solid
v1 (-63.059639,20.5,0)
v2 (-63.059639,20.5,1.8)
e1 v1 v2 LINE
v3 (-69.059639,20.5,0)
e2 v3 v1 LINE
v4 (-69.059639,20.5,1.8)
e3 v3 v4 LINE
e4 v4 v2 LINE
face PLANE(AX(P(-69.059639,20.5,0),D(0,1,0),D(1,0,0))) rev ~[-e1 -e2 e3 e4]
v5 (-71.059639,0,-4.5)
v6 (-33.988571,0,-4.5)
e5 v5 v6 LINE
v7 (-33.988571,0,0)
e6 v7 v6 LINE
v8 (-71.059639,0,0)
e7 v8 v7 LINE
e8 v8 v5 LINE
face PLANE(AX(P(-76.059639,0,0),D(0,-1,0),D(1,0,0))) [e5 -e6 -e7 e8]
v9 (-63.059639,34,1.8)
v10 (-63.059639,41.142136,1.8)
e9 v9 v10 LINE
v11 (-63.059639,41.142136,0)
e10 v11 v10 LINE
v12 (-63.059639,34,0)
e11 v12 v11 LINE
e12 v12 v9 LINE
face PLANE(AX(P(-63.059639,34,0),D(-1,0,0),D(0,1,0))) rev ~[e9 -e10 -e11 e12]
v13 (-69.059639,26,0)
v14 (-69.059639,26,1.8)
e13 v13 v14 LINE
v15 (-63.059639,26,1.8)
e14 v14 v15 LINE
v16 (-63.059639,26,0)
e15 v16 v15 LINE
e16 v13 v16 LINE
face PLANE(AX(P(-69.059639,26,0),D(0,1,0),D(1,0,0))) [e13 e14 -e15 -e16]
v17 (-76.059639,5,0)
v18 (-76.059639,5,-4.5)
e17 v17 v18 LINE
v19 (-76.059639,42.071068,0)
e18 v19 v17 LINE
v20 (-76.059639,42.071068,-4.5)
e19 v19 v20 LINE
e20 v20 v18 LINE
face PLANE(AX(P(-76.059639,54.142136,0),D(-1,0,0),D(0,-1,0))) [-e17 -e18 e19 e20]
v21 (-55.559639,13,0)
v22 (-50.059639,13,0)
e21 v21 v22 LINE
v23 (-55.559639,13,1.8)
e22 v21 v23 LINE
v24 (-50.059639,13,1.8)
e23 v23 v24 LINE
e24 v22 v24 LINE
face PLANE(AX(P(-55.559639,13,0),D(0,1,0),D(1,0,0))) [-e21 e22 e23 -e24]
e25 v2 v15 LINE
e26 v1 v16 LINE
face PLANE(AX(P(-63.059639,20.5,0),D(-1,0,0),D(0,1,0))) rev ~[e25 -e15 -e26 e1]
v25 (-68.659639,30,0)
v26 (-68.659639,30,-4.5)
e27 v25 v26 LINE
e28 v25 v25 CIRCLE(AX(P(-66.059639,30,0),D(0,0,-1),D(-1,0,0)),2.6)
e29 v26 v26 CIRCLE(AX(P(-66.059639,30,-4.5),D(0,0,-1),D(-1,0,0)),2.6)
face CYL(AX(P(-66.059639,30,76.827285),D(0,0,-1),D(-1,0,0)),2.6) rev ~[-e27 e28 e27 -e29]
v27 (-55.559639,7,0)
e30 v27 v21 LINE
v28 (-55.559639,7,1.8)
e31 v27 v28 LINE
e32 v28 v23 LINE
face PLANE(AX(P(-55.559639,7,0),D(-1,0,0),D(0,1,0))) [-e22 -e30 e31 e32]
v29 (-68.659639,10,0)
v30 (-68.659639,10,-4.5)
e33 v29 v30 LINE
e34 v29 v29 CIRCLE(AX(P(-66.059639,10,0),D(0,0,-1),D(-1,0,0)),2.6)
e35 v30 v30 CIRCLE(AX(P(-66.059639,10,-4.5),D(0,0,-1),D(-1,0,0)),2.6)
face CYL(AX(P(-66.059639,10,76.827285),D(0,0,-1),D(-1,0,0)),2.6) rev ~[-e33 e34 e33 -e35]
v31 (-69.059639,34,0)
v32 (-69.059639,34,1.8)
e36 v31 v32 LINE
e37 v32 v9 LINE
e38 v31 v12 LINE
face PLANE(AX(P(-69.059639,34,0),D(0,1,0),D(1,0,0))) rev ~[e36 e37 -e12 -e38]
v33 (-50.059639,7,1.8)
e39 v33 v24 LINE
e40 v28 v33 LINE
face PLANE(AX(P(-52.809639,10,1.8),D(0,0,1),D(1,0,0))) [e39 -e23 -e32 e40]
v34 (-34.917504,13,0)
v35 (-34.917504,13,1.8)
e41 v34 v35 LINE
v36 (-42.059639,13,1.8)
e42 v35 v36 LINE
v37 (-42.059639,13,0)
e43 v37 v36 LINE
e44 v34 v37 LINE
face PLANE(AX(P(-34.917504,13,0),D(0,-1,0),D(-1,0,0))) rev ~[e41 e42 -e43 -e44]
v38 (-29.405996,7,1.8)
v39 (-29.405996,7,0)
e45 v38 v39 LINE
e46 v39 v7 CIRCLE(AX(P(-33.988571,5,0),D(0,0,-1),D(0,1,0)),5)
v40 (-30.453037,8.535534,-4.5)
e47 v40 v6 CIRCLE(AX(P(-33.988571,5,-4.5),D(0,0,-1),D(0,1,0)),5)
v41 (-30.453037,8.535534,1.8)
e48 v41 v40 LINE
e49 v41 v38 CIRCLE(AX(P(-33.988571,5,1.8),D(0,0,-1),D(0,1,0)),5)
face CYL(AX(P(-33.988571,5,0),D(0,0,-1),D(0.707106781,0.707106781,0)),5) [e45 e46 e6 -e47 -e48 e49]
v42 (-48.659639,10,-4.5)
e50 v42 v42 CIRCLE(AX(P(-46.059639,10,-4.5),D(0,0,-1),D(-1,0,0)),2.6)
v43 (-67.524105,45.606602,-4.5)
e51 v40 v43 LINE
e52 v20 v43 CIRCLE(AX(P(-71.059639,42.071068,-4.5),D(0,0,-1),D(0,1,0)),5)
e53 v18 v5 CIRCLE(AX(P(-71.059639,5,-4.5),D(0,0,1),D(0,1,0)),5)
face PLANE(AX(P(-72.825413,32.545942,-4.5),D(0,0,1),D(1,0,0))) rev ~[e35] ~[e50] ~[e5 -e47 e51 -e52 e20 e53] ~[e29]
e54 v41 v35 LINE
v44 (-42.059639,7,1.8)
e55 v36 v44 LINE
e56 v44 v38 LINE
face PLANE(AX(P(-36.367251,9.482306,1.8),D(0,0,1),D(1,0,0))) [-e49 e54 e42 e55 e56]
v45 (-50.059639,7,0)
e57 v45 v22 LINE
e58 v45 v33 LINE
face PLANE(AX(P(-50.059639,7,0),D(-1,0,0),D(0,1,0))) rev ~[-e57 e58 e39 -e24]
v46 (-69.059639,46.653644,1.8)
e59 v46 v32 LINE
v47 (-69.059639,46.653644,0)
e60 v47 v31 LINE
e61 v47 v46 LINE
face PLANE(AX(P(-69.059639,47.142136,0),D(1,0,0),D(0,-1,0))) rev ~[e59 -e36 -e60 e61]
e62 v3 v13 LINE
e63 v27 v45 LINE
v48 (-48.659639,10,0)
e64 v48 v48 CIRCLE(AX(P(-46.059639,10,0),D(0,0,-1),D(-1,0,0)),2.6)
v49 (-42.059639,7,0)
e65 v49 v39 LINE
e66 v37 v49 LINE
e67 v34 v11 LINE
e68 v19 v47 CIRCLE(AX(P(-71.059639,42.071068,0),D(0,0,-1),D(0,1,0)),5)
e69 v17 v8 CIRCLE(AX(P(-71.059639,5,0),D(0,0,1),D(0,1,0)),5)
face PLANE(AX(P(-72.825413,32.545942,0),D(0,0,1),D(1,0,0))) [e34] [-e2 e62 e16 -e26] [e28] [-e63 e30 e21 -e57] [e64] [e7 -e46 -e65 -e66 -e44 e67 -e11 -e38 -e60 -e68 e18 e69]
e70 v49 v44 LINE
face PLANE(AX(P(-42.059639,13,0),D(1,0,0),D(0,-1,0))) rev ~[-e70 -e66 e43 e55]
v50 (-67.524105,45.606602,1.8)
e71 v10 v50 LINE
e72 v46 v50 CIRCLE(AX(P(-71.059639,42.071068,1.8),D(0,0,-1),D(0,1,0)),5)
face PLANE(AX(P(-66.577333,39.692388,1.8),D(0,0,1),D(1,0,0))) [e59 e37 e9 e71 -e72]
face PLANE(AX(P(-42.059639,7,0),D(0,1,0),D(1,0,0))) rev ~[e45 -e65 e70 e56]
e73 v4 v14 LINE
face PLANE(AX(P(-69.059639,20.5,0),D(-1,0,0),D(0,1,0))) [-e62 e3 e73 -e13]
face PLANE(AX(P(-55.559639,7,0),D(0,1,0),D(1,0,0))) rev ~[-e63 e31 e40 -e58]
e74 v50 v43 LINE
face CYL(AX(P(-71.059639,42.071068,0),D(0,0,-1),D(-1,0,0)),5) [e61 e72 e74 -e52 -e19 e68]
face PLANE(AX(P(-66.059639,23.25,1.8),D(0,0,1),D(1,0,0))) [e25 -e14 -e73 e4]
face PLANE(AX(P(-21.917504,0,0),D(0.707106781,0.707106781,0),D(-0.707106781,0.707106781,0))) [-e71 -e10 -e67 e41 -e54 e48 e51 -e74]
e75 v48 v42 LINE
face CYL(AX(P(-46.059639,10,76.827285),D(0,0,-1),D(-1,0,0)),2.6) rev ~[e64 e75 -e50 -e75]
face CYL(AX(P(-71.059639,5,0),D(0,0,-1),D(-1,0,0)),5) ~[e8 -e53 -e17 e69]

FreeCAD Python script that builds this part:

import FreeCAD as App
import Part
import Sketcher

V = App.Vector
Q = App.Units.Quantity


def edges_at(feature, points):
    """Names of the edges that pass closest to the given points."""
    edges = feature.Shape.Edges
    near = lambda p: min(range(len(edges)), key=lambda i: edges[i].distToShape(Part.Vertex(*p))[0])
    return sorted({f"Edge{near(p) + 1}" for p in points})

doc = App.newDocument("Part")
params = doc.addObject("Spreadsheet::Sheet", "Params")
for row, (alias, value) in enumerate([
    ("pad1_length", "4.5 mm"),
    ("sketch2_width", "6 mm"),
    ("sketch2_width2", "5.5 mm"),
    ("pad2_length", "1.8 mm"),
    ("sketch3_diameter", "5.2 mm"),
    ("hole_diameter", "5.2 mm"),
    ("fillet_radius", "5 mm"),
], start=1):
    params.set(f"A{row}", alias)
    params.set(f"B{row}", "=" + value)
    params.setAlias(f"B{row}", alias)

body = doc.addObject("PartDesign::Body", "Body")

sketch1 = body.newObject("Sketcher::SketchObject", "Sketch")
sketch1.AttachmentSupport = (doc.getObject("XY_Plane"), [""])
sketch1.MapMode = "FlatFace"
sketch1.addGeometry(Part.LineSegment(V(-76, 54, 0), V(-76, 0, 0)), False)
sketch1.addGeometry(Part.LineSegment(V(-76, 0, 0), V(-22, 0, 0)), False)
sketch1.addGeometry(Part.LineSegment(V(-22, 0, 0), V(-76, 54, 0)), False)
sketch1.addConstraint(Sketcher.Constraint("Coincident", 0, 2, 1, 1))
sketch1.addConstraint(Sketcher.Constraint("Coincident", 1, 2, 2, 1))
sketch1.addConstraint(Sketcher.Constraint("Coincident", 2, 2, 0, 1))
sketch1.addConstraint(Sketcher.Constraint("Vertical", 0))
sketch1.addConstraint(Sketcher.Constraint("Horizontal", 1))
sketch1.addConstraint(Sketcher.Constraint("PointOnObject", 0, 2, -1))
sketch1.addConstraint(Sketcher.Constraint("Equal", 1, 0))
sketch1.addConstraint(Sketcher.Constraint("DistanceX", 1, 1, 1, 2, Q("54.142136 mm")))
sketch1.addConstraint(Sketcher.Constraint("DistanceX", 0, 2, -1, 1, Q("76.059639 mm")))
pad1 = body.newObject("PartDesign::Pad", "Pad")
pad1.Profile = sketch1
pad1.setExpression("Length", "Params.pad1_length")
pad1.Reversed = True

sketch2 = body.newObject("Sketcher::SketchObject", "Sketch001")
sketch2.AttachmentSupport = (doc.getObject("XY_Plane"), [""])
sketch2.MapMode = "FlatFace"
sketch2.addGeometry(Part.LineSegment(V(-63, 41, 0), V(-69, 47, 0)), False)
sketch2.addGeometry(Part.LineSegment(V(-69, 47, 0), V(-69, 34, 0)), False)
sketch2.addGeometry(Part.LineSegment(V(-69, 34, 0), V(-63, 34, 0)), False)
sketch2.addGeometry(Part.LineSegment(V(-63, 34, 0), V(-63, 41, 0)), False)
sketch2.addGeometry(Part.LineSegment(V(-69, 26, 0), V(-69, 20, 0)), False)
sketch2.addGeometry(Part.LineSegment(V(-69, 20, 0), V(-63, 20, 0)), False)
sketch2.addGeometry(Part.LineSegment(V(-63, 20, 0), V(-63, 26, 0)), False)
sketch2.addGeometry(Part.LineSegment(V(-63, 26, 0), V(-69, 26, 0)), False)
sketch2.addGeometry(Part.LineSegment(V(-56, 13, 0), V(-56, 7, 0)), False)
sketch2.addGeometry(Part.LineSegment(V(-56, 7, 0), V(-50, 7, 0)), False)
sketch2.addGeometry(Part.LineSegment(V(-50, 7, 0), V(-50, 13, 0)), False)
sketch2.addGeometry(Part.LineSegment(V(-50, 13, 0), V(-56, 13, 0)), False)
sketch2.addGeometry(Part.LineSegment(V(-29, 7, 0), V(-35, 13, 0)), False)
sketch2.addGeometry(Part.LineSegment(V(-35, 13, 0), V(-42, 13, 0)), False)
sketch2.addGeometry(Part.LineSegment(V(-42, 13, 0), V(-42, 7, 0)), False)
sketch2.addGeometry(Part.LineSegment(V(-42, 7, 0), V(-29, 7, 0)), False)
sketch2.addConstraint(Sketcher.Constraint("Coincident", 0, 2, 1, 1))
sketch2.addConstraint(Sketcher.Constraint("Coincident", 1, 2, 2, 1))
sketch2.addConstraint(Sketcher.Constraint("Coincident", 2, 2, 3, 1))
sketch2.addConstraint(Sketcher.Constraint("Coincident", 3, 2, 0, 1))
sketch2.addConstraint(Sketcher.Constraint("Coincident", 4, 2, 5, 1))
sketch2.addConstraint(Sketcher.Constraint("Coincident", 5, 2, 6, 1))
sketch2.addConstraint(Sketcher.Constraint("Coincident", 6, 2, 7, 1))
sketch2.addConstraint(Sketcher.Constraint("Coincident", 7, 2, 4, 1))
sketch2.addConstraint(Sketcher.Constraint("Coincident", 8, 2, 9, 1))
sketch2.addConstraint(Sketcher.Constraint("Coincident", 9, 2, 10, 1))
sketch2.addConstraint(Sketcher.Constraint("Coincident", 10, 2, 11, 1))
sketch2.addConstraint(Sketcher.Constraint("Coincident", 11, 2, 8, 1))
sketch2.addConstraint(Sketcher.Constraint("Coincident", 12, 2, 13, 1))
sketch2.addConstraint(Sketcher.Constraint("Coincident", 13, 2, 14, 1))
sketch2.addConstraint(Sketcher.Constraint("Coincident", 14, 2, 15, 1))
sketch2.addConstraint(Sketcher.Constraint("Coincident", 15, 2, 12, 1))
sketch2.addConstraint(Sketcher.Constraint("Vertical", 1))
sketch2.addConstraint(Sketcher.Constraint("Horizontal", 2))
sketch2.addConstraint(Sketcher.Constraint("Vertical", 3))
sketch2.addConstraint(Sketcher.Constraint("Vertical", 4))
sketch2.addConstraint(Sketcher.Constraint("Horizontal", 5))
sketch2.addConstraint(Sketcher.Constraint("Vertical", 6))
sketch2.addConstraint(Sketcher.Constraint("Horizontal", 7))
sketch2.addConstraint(Sketcher.Constraint("Vertical", 8))
sketch2.addConstraint(Sketcher.Constraint("Horizontal", 9))
sketch2.addConstraint(Sketcher.Constraint("Vertical", 10))
sketch2.addConstraint(Sketcher.Constraint("Horizontal", 11))
sketch2.addConstraint(Sketcher.Constraint("Horizontal", 13))
sketch2.addConstraint(Sketcher.Constraint("Vertical", 14))
sketch2.addConstraint(Sketcher.Constraint("Horizontal", 15))
sketch2.addConstraint(Sketcher.Constraint("Parallel", 0, 12))
sketch2.addConstraint(Sketcher.Constraint("Horizontal", 11, 2, 12, 2))
sketch2.addConstraint(Sketcher.Constraint("Horizontal", 9, 2, 14, 2))
sketch2.addConstraint(Sketcher.Constraint("Vertical", 1, 2, 4, 2))
sketch2.addConstraint(Sketcher.Constraint("Vertical", 3, 2, 5, 2))
sketch2.addConstraint(Sketcher.Constraint("Equal", 15, 1))
sketch2.addConstraint(Sketcher.Constraint("Equal", 13, 3))
sketch2.addConstraint(Sketcher.Constraint("Equal", 11, 4))
sketch2.addConstraint(Sketcher.Constraint("Equal", 7, 8))
sketch2.addConstraint(Sketcher.Constraint("DistanceX", 2, 1, 2, 2, Q("6 mm")))
sketch2.addConstraint(Sketcher.Constraint("DistanceX", 9, 1, 9, 2, Q("5.5 mm")))
sketch2.addConstraint(Sketcher.Constraint("DistanceY", -1, 1, 1, 2, Q("34 mm")))
sketch2.addConstraint(Sketcher.Constraint("DistanceY", -1, 1, 6, 2, Q("26 mm")))
sketch2.addConstraint(Sketcher.Constraint("DistanceY", -1, 1, 8, 2, Q("7 mm")))
sketch2.addConstraint(Sketcher.Constraint("DistanceX", 5, 2, 9, 2, Q("13 mm")))
sketch2.addConstraint(Sketcher.Constraint("DistanceX", 10, 2, 13, 2, Q("8 mm")))
sketch2.addConstraint(Sketcher.Constraint("DistanceX", 13, 2, 13, 1, Q("7.142136 mm")))
sketch2.addConstraint(Sketcher.Constraint("DistanceX", 0, 2, -1, 1, Q("69.059639 mm")))
sketch2.setExpression("Constraints[39]", "Params.sketch2_width")
sketch2.setExpression("Constraints[40]", "Params.sketch2_width2")
pad2 = body.newObject("PartDesign::Pad", "Pad001")
pad2.Profile = sketch2
pad2.setExpression("Length", "Params.pad2_length")

sketch3 = body.newObject("Sketcher::SketchObject", "Sketch002")
sketch3.AttachmentSupport = (doc.getObject("XY_Plane"), [""])
sketch3.MapMode = "FlatFace"
sketch3.addGeometry(Part.Circle(V(-66.1, 30, 0), V(0, 0, 1), 2.6), False)
sketch3.addGeometry(Part.Circle(V(-66.1, 10, 0), V(0, 0, 1), 2.6), False)
sketch3.addGeometry(Part.Circle(V(-46.1, 10, 0), V(0, 0, 1), 2.6), False)
sketch3.addConstraint(Sketcher.Constraint("Equal", 0, 1))
sketch3.addConstraint(Sketcher.Constraint("Equal", 1, 2))
sketch3.addConstraint(Sketcher.Constraint("Horizontal", 1, 3, 2, 3))
sketch3.addConstraint(Sketcher.Constraint("Vertical", 0, 3, 1, 3))
sketch3.addConstraint(Sketcher.Constraint("Diameter", 0, Q("5.2 mm")))
sketch3.addConstraint(Sketcher.Constraint("DistanceY", -1, 1, 0, 3, Q("30 mm")))
sketch3.addConstraint(Sketcher.Constraint("DistanceY", -1, 1, 1, 3, Q("10 mm")))
sketch3.addConstraint(Sketcher.Constraint("DistanceX", 1, 3, 2, 3, Q("20 mm")))
sketch3.addConstraint(Sketcher.Constraint("DistanceX", 0, 3, -1, 1, Q("66.059639 mm")))
sketch3.setExpression("Constraints[4]", "Params.sketch3_diameter")
doc.recompute()
hole = body.newObject("PartDesign::Hole", "Hole")
hole.Profile = sketch3
hole.ThreadType = "None"
hole.setExpression("Diameter", "Params.hole_diameter")
hole.DepthType = "ThroughAll"
doc.recompute()

fillet = body.newObject("PartDesign::Fillet", "Fillet")
fillet.Base = (hole, edges_at(hole, [(-21.918, 0, -2.25), (-76.06, 0, -2.25), (-76.06, 54.142, -2.25)]))
fillet.setExpression("Radius", "Params.fillet_radius")

doc.recompute()
